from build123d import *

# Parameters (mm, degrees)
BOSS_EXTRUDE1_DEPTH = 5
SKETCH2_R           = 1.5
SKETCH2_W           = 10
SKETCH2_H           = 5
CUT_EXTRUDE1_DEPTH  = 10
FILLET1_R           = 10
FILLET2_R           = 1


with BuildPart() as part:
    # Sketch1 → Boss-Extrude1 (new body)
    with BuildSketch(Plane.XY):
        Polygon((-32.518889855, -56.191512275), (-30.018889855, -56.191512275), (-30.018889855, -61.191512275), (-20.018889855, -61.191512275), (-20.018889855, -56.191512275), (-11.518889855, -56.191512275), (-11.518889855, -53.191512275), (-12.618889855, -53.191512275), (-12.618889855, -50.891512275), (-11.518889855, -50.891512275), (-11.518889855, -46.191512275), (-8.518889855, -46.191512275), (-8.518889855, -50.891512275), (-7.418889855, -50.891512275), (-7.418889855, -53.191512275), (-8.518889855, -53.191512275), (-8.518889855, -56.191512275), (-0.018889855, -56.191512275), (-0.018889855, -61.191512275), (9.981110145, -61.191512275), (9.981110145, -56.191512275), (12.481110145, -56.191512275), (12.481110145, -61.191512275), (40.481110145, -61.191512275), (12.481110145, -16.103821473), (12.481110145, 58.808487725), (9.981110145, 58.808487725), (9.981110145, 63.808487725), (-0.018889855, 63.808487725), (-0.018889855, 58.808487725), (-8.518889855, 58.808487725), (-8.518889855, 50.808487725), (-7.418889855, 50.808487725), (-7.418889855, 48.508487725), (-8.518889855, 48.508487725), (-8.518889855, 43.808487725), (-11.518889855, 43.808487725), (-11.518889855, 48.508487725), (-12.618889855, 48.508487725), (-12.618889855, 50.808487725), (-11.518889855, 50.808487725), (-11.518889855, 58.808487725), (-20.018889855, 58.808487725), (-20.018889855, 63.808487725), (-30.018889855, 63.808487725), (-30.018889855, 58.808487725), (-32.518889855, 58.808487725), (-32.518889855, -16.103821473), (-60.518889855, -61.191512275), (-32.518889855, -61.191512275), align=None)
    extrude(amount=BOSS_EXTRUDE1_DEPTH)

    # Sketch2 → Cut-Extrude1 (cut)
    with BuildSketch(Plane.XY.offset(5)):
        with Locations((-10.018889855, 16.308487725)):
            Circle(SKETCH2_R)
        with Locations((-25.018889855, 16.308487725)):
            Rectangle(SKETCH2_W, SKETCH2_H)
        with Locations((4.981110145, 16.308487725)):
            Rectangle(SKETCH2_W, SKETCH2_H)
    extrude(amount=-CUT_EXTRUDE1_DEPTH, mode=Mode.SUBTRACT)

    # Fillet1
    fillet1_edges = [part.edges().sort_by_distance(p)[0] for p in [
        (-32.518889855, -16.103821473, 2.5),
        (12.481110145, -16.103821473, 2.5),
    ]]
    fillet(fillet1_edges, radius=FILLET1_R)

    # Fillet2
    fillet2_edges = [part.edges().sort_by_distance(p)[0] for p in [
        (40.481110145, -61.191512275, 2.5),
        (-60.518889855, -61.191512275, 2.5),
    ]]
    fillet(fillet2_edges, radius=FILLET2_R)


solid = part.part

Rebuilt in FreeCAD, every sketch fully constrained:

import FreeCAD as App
import Part
import Sketcher
from FreeCAD import Vector
Q = App.Units.Quantity


def edges_at(feature, points):
    """Names of the edges that pass closest to the given points."""
    edges = feature.Shape.Edges
    near = lambda p: min(range(len(edges)), key=lambda i: edges[i].distToShape(Part.Vertex(*p))[0])
    return sorted({f"Edge{near(p) + 1}" for p in points})

doc = App.newDocument("Part")
body = doc.addObject("PartDesign::Body", "Body")

# Sketch on XY plane
sketch1 = body.newObject("Sketcher::SketchObject", "Sketch")
sketch1.AttachmentSupport = (doc.getObject("XY_Plane"), [""])
sketch1.MapMode = "FlatFace"
sketch1.addGeometry(Part.LineSegment(Vector(-32.5, -56.2, 0), Vector(-30, -56.2, 0)), False)
sketch1.addGeometry(Part.LineSegment(Vector(-30, -56.2, 0), Vector(-30, -61.2, 0)), False)
sketch1.addGeometry(Part.LineSegment(Vector(-30, -61.2, 0), Vector(-20, -61.2, 0)), False)
sketch1.addGeometry(Part.LineSegment(Vector(-20, -61.2, 0), Vector(-20, -56.2, 0)), False)
sketch1.addGeometry(Part.LineSegment(Vector(-20, -56.2, 0), Vector(-11.5, -56.2, 0)), False)
sketch1.addGeometry(Part.LineSegment(Vector(-11.5, -56.2, 0), Vector(-11.5, -53.2, 0)), False)
sketch1.addGeometry(Part.LineSegment(Vector(-11.5, -53.2, 0), Vector(-12.6, -53.2, 0)), False)
sketch1.addGeometry(Part.LineSegment(Vector(-12.6, -53.2, 0), Vector(-12.6, -50.9, 0)), False)
sketch1.addGeometry(Part.LineSegment(Vector(-12.6, -50.9, 0), Vector(-11.5, -50.9, 0)), False)
sketch1.addGeometry(Part.LineSegment(Vector(-11.5, -50.9, 0), Vector(-11.5, -46.2, 0)), False)
sketch1.addGeometry(Part.LineSegment(Vector(-11.5, -46.2, 0), Vector(-8.5, -46.2, 0)), False)
sketch1.addGeometry(Part.LineSegment(Vector(-8.5, -46.2, 0), Vector(-8.5, -50.9, 0)), False)
sketch1.addGeometry(Part.LineSegment(Vector(-8.5, -50.9, 0), Vector(-7.4, -50.9, 0)), False)
sketch1.addGeometry(Part.LineSegment(Vector(-7.4, -50.9, 0), Vector(-7.4, -53.2, 0)), False)
sketch1.addGeometry(Part.LineSegment(Vector(-7.4, -53.2, 0), Vector(-8.5, -53.2, 0)), False)
sketch1.addGeometry(Part.LineSegment(Vector(-8.5, -53.2, 0), Vector(-8.5, -56.2, 0)), False)
sketch1.addGeometry(Part.LineSegment(Vector(-8.5, -56.2, 0), Vector(0, -56.2, 0)), False)
sketch1.addGeometry(Part.LineSegment(Vector(0, -56.2, 0), Vector(0, -61.2, 0)), False)
sketch1.addGeometry(Part.LineSegment(Vector(0, -61.2, 0), Vector(10, -61.2, 0)), False)
sketch1.addGeometry(Part.LineSegment(Vector(10, -61.2, 0), Vector(10, -56.2, 0)), False)
sketch1.addGeometry(Part.LineSegment(Vector(10, -56.2, 0), Vector(12.5, -56.2, 0)), False)
sketch1.addGeometry(Part.LineSegment(Vector(12.5, -56.2, 0), Vector(12.5, -61.2, 0)), False)
sketch1.addGeometry(Part.LineSegment(Vector(12.5, -61.2, 0), Vector(40.5, -61.2, 0)), False)
sketch1.addGeometry(Part.LineSegment(Vector(40.5, -61.2, 0), Vector(12.5, -16.1, 0)), False)
sketch1.addGeometry(Part.LineSegment(Vector(12.5, -16.1, 0), Vector(12.5, 58.8, 0)), False)
sketch1.addGeometry(Part.LineSegment(Vector(12.5, 58.8, 0), Vector(10, 58.8, 0)), False)
sketch1.addGeometry(Part.LineSegment(Vector(10, 58.8, 0), Vector(10, 63.8, 0)), False)
sketch1.addGeometry(Part.LineSegment(Vector(10, 63.8, 0), Vector(0, 63.8, 0)), False)
sketch1.addGeometry(Part.LineSegment(Vector(0, 63.8, 0), Vector(0, 58.8, 0)), False)
sketch1.addGeometry(Part.LineSegment(Vector(0, 58.8, 0), Vector(-8.5, 58.8, 0)), False)
sketch1.addGeometry(Part.LineSegment(Vector(-8.5, 58.8, 0), Vector(-8.5, 50.8, 0)), False)
sketch1.addGeometry(Part.LineSegment(Vector(-8.5, 50.8, 0), Vector(-7.4, 50.8, 0)), False)
sketch1.addGeometry(Part.LineSegment(Vector(-7.4, 50.8, 0), Vector(-7.4, 48.5, 0)), False)
sketch1.addGeometry(Part.LineSegment(Vector(-7.4, 48.5, 0), Vector(-8.5, 48.5, 0)), False)
sketch1.addGeometry(Part.LineSegment(Vector(-8.5, 48.5, 0), Vector(-8.5, 43.8, 0)), False)
sketch1.addGeometry(Part.LineSegment(Vector(-8.5, 43.8, 0), Vector(-11.5, 43.8, 0)), False)
sketch1.addGeometry(Part.LineSegment(Vector(-11.5, 43.8, 0), Vector(-11.5, 48.5, 0)), False)
sketch1.addGeometry(Part.LineSegment(Vector(-11.5, 48.5, 0), Vector(-12.6, 48.5, 0)), False)
sketch1.addGeometry(Part.LineSegment(Vector(-12.6, 48.5, 0), Vector(-12.6, 50.8, 0)), False)
sketch1.addGeometry(Part.LineSegment(Vector(-12.6, 50.8, 0), Vector(-11.5, 50.8, 0)), False)
sketch1.addGeometry(Part.LineSegment(Vector(-11.5, 50.8, 0), Vector(-11.5, 58.8, 0)), False)
sketch1.addGeometry(Part.LineSegment(Vector(-11.5, 58.8, 0), Vector(-20, 58.8, 0)), False)
sketch1.addGeometry(Part.LineSegment(Vector(-20, 58.8, 0), Vector(-20, 63.8, 0)), False)
sketch1.addGeometry(Part.LineSegment(Vector(-20, 63.8, 0), Vector(-30, 63.8, 0)), False)
sketch1.addGeometry(Part.LineSegment(Vector(-30, 63.8, 0), Vector(-30, 58.8, 0)), False)
sketch1.addGeometry(Part.LineSegment(Vector(-30, 58.8, 0), Vector(-32.5, 58.8, 0)), False)
sketch1.addGeometry(Part.LineSegment(Vector(-32.5, 58.8, 0), Vector(-32.5, -16.1, 0)), False)
sketch1.addGeometry(Part.LineSegment(Vector(-32.5, -16.1, 0), Vector(-60.5, -61.2, 0)), False)
sketch1.addGeometry(Part.LineSegment(Vector(-60.5, -61.2, 0), Vector(-32.5, -61.2, 0)), False)
sketch1.addGeometry(Part.LineSegment(Vector(-32.5, -61.2, 0), Vector(-32.5, -56.2, 0)), False)
sketch1.addConstraint(Sketcher.Constraint("Coincident", 0, 2, 1, 1))
sketch1.addConstraint(Sketcher.Constraint("Coincident", 1, 2, 2, 1))
sketch1.addConstraint(Sketcher.Constraint("Coincident", 2, 2, 3, 1))
sketch1.addConstraint(Sketcher.Constraint("Coincident", 3, 2, 4, 1))
sketch1.addConstraint(Sketcher.Constraint("Coincident", 4, 2, 5, 1))
sketch1.addConstraint(Sketcher.Constraint("Coincident", 5, 2, 6, 1))
sketch1.addConstraint(Sketcher.Constraint("Coincident", 6, 2, 7, 1))
sketch1.addConstraint(Sketcher.Constraint("Coincident", 7, 2, 8, 1))
sketch1.addConstraint(Sketcher.Constraint("Coincident", 8, 2, 9, 1))
sketch1.addConstraint(Sketcher.Constraint("Coincident", 9, 2, 10, 1))
sketch1.addConstraint(Sketcher.Constraint("Coincident", 10, 2, 11, 1))
sketch1.addConstraint(Sketcher.Constraint("Coincident", 11, 2, 12, 1))
sketch1.addConstraint(Sketcher.Constraint("Coincident", 12, 2, 13, 1))
sketch1.addConstraint(Sketcher.Constraint("Coincident", 13, 2, 14, 1))
sketch1.addConstraint(Sketcher.Constraint("Coincident", 14, 2, 15, 1))
sketch1.addConstraint(Sketcher.Constraint("Coincident", 15, 2, 16, 1))
sketch1.addConstraint(Sketcher.Constraint("Coincident", 16, 2, 17, 1))
sketch1.addConstraint(Sketcher.Constraint("Coincident", 17, 2, 18, 1))
sketch1.addConstraint(Sketcher.Constraint("Coincident", 18, 2, 19, 1))
sketch1.addConstraint(Sketcher.Constraint("Coincident", 19, 2, 20, 1))
sketch1.addConstraint(Sketcher.Constraint("Coincident", 20, 2, 21, 1))
sketch1.addConstraint(Sketcher.Constraint("Coincident", 21, 2, 22, 1))
sketch1.addConstraint(Sketcher.Constraint("Coincident", 22, 2, 23, 1))
sketch1.addConstraint(Sketcher.Constraint("Coincident", 23, 2, 24, 1))
sketch1.addConstraint(Sketcher.Constraint("Coincident", 24, 2, 25, 1))
sketch1.addConstraint(Sketcher.Constraint("Coincident", 25, 2, 26, 1))
sketch1.addConstraint(Sketcher.Constraint("Coincident", 26, 2, 27, 1))
sketch1.addConstraint(Sketcher.Constraint("Coincident", 27, 2, 28, 1))
sketch1.addConstraint(Sketcher.Constraint("Coincident", 28, 2, 29, 1))
sketch1.addConstraint(Sketcher.Constraint("Coincident", 29, 2, 30, 1))
sketch1.addConstraint(Sketcher.Constraint("Coincident", 30, 2, 31, 1))
sketch1.addConstraint(Sketcher.Constraint("Coincident", 31, 2, 32, 1))
sketch1.addConstraint(Sketcher.Constraint("Coincident", 32, 2, 33, 1))
sketch1.addConstraint(Sketcher.Constraint("Coincident", 33, 2, 34, 1))
sketch1.addConstraint(Sketcher.Constraint("Coincident", 34, 2, 35, 1))
sketch1.addConstraint(Sketcher.Constraint("Coincident", 35, 2, 36, 1))
sketch1.addConstraint(Sketcher.Constraint("Coincident", 36, 2, 37, 1))
sketch1.addConstraint(Sketcher.Constraint("Coincident", 37, 2, 38, 1))
sketch1.addConstraint(Sketcher.Constraint("Coincident", 38, 2, 39, 1))
sketch1.addConstraint(Sketcher.Constraint("Coincident", 39, 2, 40, 1))
sketch1.addConstraint(Sketcher.Constraint("Coincident", 40, 2, 41, 1))
sketch1.addConstraint(Sketcher.Constraint("Coincident", 41, 2, 42, 1))
sketch1.addConstraint(Sketcher.Constraint("Coincident", 42, 2, 43, 1))
sketch1.addConstraint(Sketcher.Constraint("Coincident", 43, 2, 44, 1))
sketch1.addConstraint(Sketcher.Constraint("Coincident", 44, 2, 45, 1))
sketch1.addConstraint(Sketcher.Constraint("Coincident", 45, 2, 46, 1))
sketch1.addConstraint(Sketcher.Constraint("Coincident", 46, 2, 47, 1))
sketch1.addConstraint(Sketcher.Constraint("Coincident", 47, 2, 48, 1))
sketch1.addConstraint(Sketcher.Constraint("Coincident", 48, 2, 49, 1))
sketch1.addConstraint(Sketcher.Constraint("Coincident", 49, 2, 0, 1))
sketch1.addConstraint(Sketcher.Constraint("Horizontal", 0))
sketch1.addConstraint(Sketcher.Constraint("Vertical", 1))
sketch1.addConstraint(Sketcher.Constraint("Horizontal", 2))
sketch1.addConstraint(Sketcher.Constraint("Vertical", 3))
sketch1.addConstraint(Sketcher.Constraint("Horizontal", 4))
sketch1.addConstraint(Sketcher.Constraint("Vertical", 5))
sketch1.addConstraint(Sketcher.Constraint("Horizontal", 6))
sketch1.addConstraint(Sketcher.Constraint("Vertical", 7))
sketch1.addConstraint(Sketcher.Constraint("Horizontal", 8))
sketch1.addConstraint(Sketcher.Constraint("Vertical", 9))
sketch1.addConstraint(Sketcher.Constraint("Horizontal", 10))
sketch1.addConstraint(Sketcher.Constraint("Vertical", 11))
sketch1.addConstraint(Sketcher.Constraint("Horizontal", 12))
sketch1.addConstraint(Sketcher.Constraint("Vertical", 13))
sketch1.addConstraint(Sketcher.Constraint("Horizontal", 14))
sketch1.addConstraint(Sketcher.Constraint("Vertical", 15))
sketch1.addConstraint(Sketcher.Constraint("Horizontal", 16))
sketch1.addConstraint(Sketcher.Constraint("Vertical", 17))
sketch1.addConstraint(Sketcher.Constraint("Horizontal", 18))
sketch1.addConstraint(Sketcher.Constraint("Vertical", 19))
sketch1.addConstraint(Sketcher.Constraint("Horizontal", 20))
sketch1.addConstraint(Sketcher.Constraint("Vertical", 21))
sketch1.addConstraint(Sketcher.Constraint("Horizontal", 22))
sketch1.addConstraint(Sketcher.Constraint("Vertical", 24))
sketch1.addConstraint(Sketcher.Constraint("Horizontal", 25))
sketch1.addConstraint(Sketcher.Constraint("Vertical", 26))
sketch1.addConstraint(Sketcher.Constraint("Horizontal", 27))
sketch1.addConstraint(Sketcher.Constraint("Vertical", 28))
sketch1.addConstraint(Sketcher.Constraint("Horizontal", 29))
sketch1.addConstraint(Sketcher.Constraint("Vertical", 30))
sketch1.addConstraint(Sketcher.Constraint("Horizontal", 31))
sketch1.addConstraint(Sketcher.Constraint("Vertical", 32))
sketch1.addConstraint(Sketcher.Constraint("Horizontal", 33))
sketch1.addConstraint(Sketcher.Constraint("Vertical", 34))
sketch1.addConstraint(Sketcher.Constraint("Horizontal", 35))
sketch1.addConstraint(Sketcher.Constraint("Vertical", 36))
sketch1.addConstraint(Sketcher.Constraint("Horizontal", 37))
sketch1.addConstraint(Sketcher.Constraint("Vertical", 38))
sketch1.addConstraint(Sketcher.Constraint("Horizontal", 39))
sketch1.addConstraint(Sketcher.Constraint("Vertical", 40))
sketch1.addConstraint(Sketcher.Constraint("Horizontal", 41))
sketch1.addConstraint(Sketcher.Constraint("Vertical", 42))
sketch1.addConstraint(Sketcher.Constraint("Horizontal", 43))
sketch1.addConstraint(Sketcher.Constraint("Vertical", 44))
sketch1.addConstraint(Sketcher.Constraint("Horizontal", 45))
sketch1.addConstraint(Sketcher.Constraint("Vertical", 46))
sketch1.addConstraint(Sketcher.Constraint("Horizontal", 48))
sketch1.addConstraint(Sketcher.Constraint("Vertical", 49))
sketch1.addConstraint(Sketcher.Constraint("Horizontal", 0, 2, 3, 2))
sketch1.addConstraint(Sketcher.Constraint("Horizontal", 8, 2, 11, 2))
sketch1.addConstraint(Sketcher.Constraint("Horizontal", 6, 2, 13, 2))
sketch1.addConstraint(Sketcher.Constraint("Horizontal", 4, 2, 15, 2))
sketch1.addConstraint(Sketcher.Constraint("Horizontal", 2, 2, 17, 2))
sketch1.addConstraint(Sketcher.Constraint("Horizontal", 16, 2, 19, 2))
sketch1.addConstraint(Sketcher.Constraint("Horizontal", 18, 2, 21, 2))
sketch1.addConstraint(Sketcher.Constraint("Horizontal", 25, 2, 28, 2))
sketch1.addConstraint(Sketcher.Constraint("Horizontal", 33, 2, 36, 2))
sketch1.addConstraint(Sketcher.Constraint("Horizontal", 31, 2, 38, 2))
sketch1.addConstraint(Sketcher.Constraint("Horizontal", 29, 2, 40, 2))
sketch1.addConstraint(Sketcher.Constraint("Horizontal", 27, 2, 42, 2))
sketch1.addConstraint(Sketcher.Constraint("Horizontal", 41, 2, 44, 2))
sketch1.addConstraint(Sketcher.Constraint("Horizontal", 23, 2, 46, 2))
sketch1.addConstraint(Sketcher.Constraint("Horizontal", 22, 2, 47, 2))
sketch1.addConstraint(Sketcher.Constraint("Vertical", 5, 2, 8, 2))
sketch1.addConstraint(Sketcher.Constraint("Vertical", 11, 2, 14, 2))
sketch1.addConstraint(Sketcher.Constraint("Vertical", 21, 2, 23, 2))
sketch1.addConstraint(Sketcher.Constraint("Vertical", 19, 2, 25, 2))
sketch1.addConstraint(Sketcher.Constraint("Vertical", 17, 2, 27, 2))
sketch1.addConstraint(Sketcher.Constraint("Vertical", 15, 2, 29, 2))
sketch1.addConstraint(Sketcher.Constraint("Vertical", 13, 2, 31, 2))
sketch1.addConstraint(Sketcher.Constraint("Vertical", 30, 2, 33, 2))
sketch1.addConstraint(Sketcher.Constraint("Vertical", 9, 2, 35, 2))
sketch1.addConstraint(Sketcher.Constraint("Vertical", 7, 2, 37, 2))
sketch1.addConstraint(Sketcher.Constraint("Vertical", 36, 2, 39, 2))
sketch1.addConstraint(Sketcher.Constraint("Vertical", 3, 2, 41, 2))
sketch1.addConstraint(Sketcher.Constraint("Vertical", 1, 2, 43, 2))
sketch1.addConstraint(Sketcher.Constraint("Vertical", 46, 2, 48, 2))
sketch1.addConstraint(Sketcher.Constraint("Equal", 8, 12))
sketch1.addConstraint(Sketcher.Constraint("Equal", 4, 16))
sketch1.addConstraint(Sketcher.Constraint("Equal", 2, 18))
sketch1.addConstraint(Sketcher.Constraint("Equal", 0, 20))
sketch1.addConstraint(Sketcher.Constraint("Equal", 22, 48))
sketch1.addConstraint(Sketcher.Constraint("Equal", 35, 5))
sketch1.addConstraint(Sketcher.Constraint("Equal", 21, 26))
sketch1.addConstraint(Sketcher.Constraint("Equal", 13, 32))
sketch1.addConstraint(Sketcher.Constraint("Equal", 11, 34))
sketch1.addConstraint(Sketcher.Constraint("DistanceX", 2, 1, 2, 2, Q("10 mm")))
sketch1.addConstraint(Sketcher.Constraint("DistanceX", 10, 1, 10, 2, Q("3 mm")))
sketch1.addConstraint(Sketcher.Constraint("DistanceX", 22, 1, 22, 2, Q("28 mm")))
sketch1.addConstraint(Sketcher.Constraint("DistanceY", 1, 2, 1, 1, Q("5 mm")))
sketch1.addConstraint(Sketcher.Constraint("DistanceY", 30, 2, 30, 1, Q("8 mm")))
sketch1.addConstraint(Sketcher.Constraint("DistanceX", 0, 1, 0, 2, Q("2.5 mm")))
sketch1.addConstraint(Sketcher.Constraint("DistanceX", 4, 1, 4, 2, Q("8.5 mm")))
sketch1.addConstraint(Sketcher.Constraint("DistanceX", 6, 2, 6, 1, Q("1.1 mm")))
sketch1.addConstraint(Sketcher.Constraint("DistanceY", 7, 1, 7, 2, Q("2.3 mm")))
sketch1.addConstraint(Sketcher.Constraint("DistanceY", 9, 1, 9, 2, Q("4.7 mm")))
sketch1.addConstraint(Sketcher.Constraint("DistanceY", 10, 2, 24, 2, Q("105 mm")))
sketch1.addConstraint(Sketcher.Constraint("DistanceY", 24, 1, 24, 2, Q("74.912309 mm")))
sketch1.addConstraint(Sketcher.Constraint("DistanceX", 0, 2, -1, 1, Q("30.01889 mm")))
sketch1.addConstraint(Sketcher.Constraint("DistanceY", 23, 2, -1, 1, Q("16.103821 mm")))
pad1 = body.newObject("PartDesign::Pad", "Pad")
pad1.Profile = sketch1
pad1.Length = 5

# Sketch on XY plane
sketch2 = body.newObject("Sketcher::SketchObject", "Sketch001")
sketch2.AttachmentSupport = (doc.getObject("XY_Plane"), [""])
sketch2.MapMode = "FlatFace"
sketch2.AttachmentOffset = App.Placement(Vector(0, 0, 5), App.Rotation())
sketch2.addGeometry(Part.Circle(Vector(-10, 16.3, 0), Vector(0, 0, 1), 1.5), False)
sketch2.addGeometry(Part.LineSegment(Vector(-30, 18.8, 0), Vector(-30, 13.8, 0)), False)
sketch2.addGeometry(Part.LineSegment(Vector(-30, 13.8, 0), Vector(-20, 13.8, 0)), False)
sketch2.addGeometry(Part.LineSegment(Vector(-20, 13.8, 0), Vector(-20, 18.8, 0)), False)
sketch2.addGeometry(Part.LineSegment(Vector(-20, 18.8, 0), Vector(-30, 18.8, 0)), False)
sketch2.addGeometry(Part.LineSegment(Vector(0, 18.8, 0), Vector(0, 13.8, 0)), False)
sketch2.addGeometry(Part.LineSegment(Vector(0, 13.8, 0), Vector(10, 13.8, 0)), False)
sketch2.addGeometry(Part.LineSegment(Vector(10, 13.8, 0), Vector(10, 18.8, 0)), False)
sketch2.addGeometry(Part.LineSegment(Vector(10, 18.8, 0), Vector(0, 18.8, 0)), False)
sketch2.addConstraint(Sketcher.Constraint("Coincident", 1, 2, 2, 1))
sketch2.addConstraint(Sketcher.Constraint("Coincident", 2, 2, 3, 1))
sketch2.addConstraint(Sketcher.Constraint("Coincident", 3, 2, 4, 1))
sketch2.addConstraint(Sketcher.Constraint("Coincident", 4, 2, 1, 1))
sketch2.addConstraint(Sketcher.Constraint("Coincident", 5, 2, 6, 1))
sketch2.addConstraint(Sketcher.Constraint("Coincident", 6, 2, 7, 1))
sketch2.addConstraint(Sketcher.Constraint("Coincident", 7, 2, 8, 1))
sketch2.addConstraint(Sketcher.Constraint("Coincident", 8, 2, 5, 1))
sketch2.addConstraint(Sketcher.Constraint("Vertical", 1))
sketch2.addConstraint(Sketcher.Constraint("Horizontal", 2))
sketch2.addConstraint(Sketcher.Constraint("Vertical", 3))
sketch2.addConstraint(Sketcher.Constraint("Horizontal", 4))
sketch2.addConstraint(Sketcher.Constraint("Vertical", 5))
sketch2.addConstraint(Sketcher.Constraint("Horizontal", 6))
sketch2.addConstraint(Sketcher.Constraint("Vertical", 7))
sketch2.addConstraint(Sketcher.Constraint("Horizontal", 8))
sketch2.addConstraint(Sketcher.Constraint("Horizontal", 2, 2, 5, 2))
sketch2.addConstraint(Sketcher.Constraint("Horizontal", 4, 2, 7, 2))
sketch2.addConstraint(Sketcher.Constraint("Equal", 4, 6))
sketch2.addConstraint(Sketcher.Constraint("Diameter", 0, Q("3 mm")))
sketch2.addConstraint(Sketcher.Constraint("DistanceX", 2, 1, 2, 2, Q("10 mm")))
sketch2.addConstraint(Sketcher.Constraint("DistanceY", 1, 2, 1, 1, Q("5 mm")))
sketch2.addConstraint(Sketcher.Constraint("DistanceX", 1, 2, 0, 3, Q("20 mm")))
sketch2.addConstraint(Sketcher.Constraint("DistanceX", 0, 3, 5, 2, Q("10 mm")))
sketch2.addConstraint(Sketcher.Constraint("DistanceY", 1, 2, 0, 3, Q("2.5 mm")))
sketch2.addConstraint(Sketcher.Constraint("DistanceX", 0, 3, -1, 1, Q("10.01889 mm")))
sketch2.addConstraint(Sketcher.Constraint("DistanceY", -1, 1, 0, 3, Q("16.308488 mm")))
pocket1 = body.newObject("PartDesign::Pocket", "Pocket")
pocket1.Profile = sketch2
pocket1.Length = 10
doc.recompute()

fillet = body.newObject("PartDesign::Fillet", "Fillet")
fillet.Base = (pocket1, edges_at(pocket1, [(-32.519, -16.104, 2.5), (12.481, -16.104, 2.5)]))
fillet.Radius = 10
doc.recompute()

fillet2 = body.newObject("PartDesign::Fillet", "Fillet001")
fillet2.Base = (fillet, edges_at(fillet, [(40.481, -61.192, 2.5), (-60.519, -61.192, 2.5)]))
fillet2.Radius = 1

doc.recompute()
